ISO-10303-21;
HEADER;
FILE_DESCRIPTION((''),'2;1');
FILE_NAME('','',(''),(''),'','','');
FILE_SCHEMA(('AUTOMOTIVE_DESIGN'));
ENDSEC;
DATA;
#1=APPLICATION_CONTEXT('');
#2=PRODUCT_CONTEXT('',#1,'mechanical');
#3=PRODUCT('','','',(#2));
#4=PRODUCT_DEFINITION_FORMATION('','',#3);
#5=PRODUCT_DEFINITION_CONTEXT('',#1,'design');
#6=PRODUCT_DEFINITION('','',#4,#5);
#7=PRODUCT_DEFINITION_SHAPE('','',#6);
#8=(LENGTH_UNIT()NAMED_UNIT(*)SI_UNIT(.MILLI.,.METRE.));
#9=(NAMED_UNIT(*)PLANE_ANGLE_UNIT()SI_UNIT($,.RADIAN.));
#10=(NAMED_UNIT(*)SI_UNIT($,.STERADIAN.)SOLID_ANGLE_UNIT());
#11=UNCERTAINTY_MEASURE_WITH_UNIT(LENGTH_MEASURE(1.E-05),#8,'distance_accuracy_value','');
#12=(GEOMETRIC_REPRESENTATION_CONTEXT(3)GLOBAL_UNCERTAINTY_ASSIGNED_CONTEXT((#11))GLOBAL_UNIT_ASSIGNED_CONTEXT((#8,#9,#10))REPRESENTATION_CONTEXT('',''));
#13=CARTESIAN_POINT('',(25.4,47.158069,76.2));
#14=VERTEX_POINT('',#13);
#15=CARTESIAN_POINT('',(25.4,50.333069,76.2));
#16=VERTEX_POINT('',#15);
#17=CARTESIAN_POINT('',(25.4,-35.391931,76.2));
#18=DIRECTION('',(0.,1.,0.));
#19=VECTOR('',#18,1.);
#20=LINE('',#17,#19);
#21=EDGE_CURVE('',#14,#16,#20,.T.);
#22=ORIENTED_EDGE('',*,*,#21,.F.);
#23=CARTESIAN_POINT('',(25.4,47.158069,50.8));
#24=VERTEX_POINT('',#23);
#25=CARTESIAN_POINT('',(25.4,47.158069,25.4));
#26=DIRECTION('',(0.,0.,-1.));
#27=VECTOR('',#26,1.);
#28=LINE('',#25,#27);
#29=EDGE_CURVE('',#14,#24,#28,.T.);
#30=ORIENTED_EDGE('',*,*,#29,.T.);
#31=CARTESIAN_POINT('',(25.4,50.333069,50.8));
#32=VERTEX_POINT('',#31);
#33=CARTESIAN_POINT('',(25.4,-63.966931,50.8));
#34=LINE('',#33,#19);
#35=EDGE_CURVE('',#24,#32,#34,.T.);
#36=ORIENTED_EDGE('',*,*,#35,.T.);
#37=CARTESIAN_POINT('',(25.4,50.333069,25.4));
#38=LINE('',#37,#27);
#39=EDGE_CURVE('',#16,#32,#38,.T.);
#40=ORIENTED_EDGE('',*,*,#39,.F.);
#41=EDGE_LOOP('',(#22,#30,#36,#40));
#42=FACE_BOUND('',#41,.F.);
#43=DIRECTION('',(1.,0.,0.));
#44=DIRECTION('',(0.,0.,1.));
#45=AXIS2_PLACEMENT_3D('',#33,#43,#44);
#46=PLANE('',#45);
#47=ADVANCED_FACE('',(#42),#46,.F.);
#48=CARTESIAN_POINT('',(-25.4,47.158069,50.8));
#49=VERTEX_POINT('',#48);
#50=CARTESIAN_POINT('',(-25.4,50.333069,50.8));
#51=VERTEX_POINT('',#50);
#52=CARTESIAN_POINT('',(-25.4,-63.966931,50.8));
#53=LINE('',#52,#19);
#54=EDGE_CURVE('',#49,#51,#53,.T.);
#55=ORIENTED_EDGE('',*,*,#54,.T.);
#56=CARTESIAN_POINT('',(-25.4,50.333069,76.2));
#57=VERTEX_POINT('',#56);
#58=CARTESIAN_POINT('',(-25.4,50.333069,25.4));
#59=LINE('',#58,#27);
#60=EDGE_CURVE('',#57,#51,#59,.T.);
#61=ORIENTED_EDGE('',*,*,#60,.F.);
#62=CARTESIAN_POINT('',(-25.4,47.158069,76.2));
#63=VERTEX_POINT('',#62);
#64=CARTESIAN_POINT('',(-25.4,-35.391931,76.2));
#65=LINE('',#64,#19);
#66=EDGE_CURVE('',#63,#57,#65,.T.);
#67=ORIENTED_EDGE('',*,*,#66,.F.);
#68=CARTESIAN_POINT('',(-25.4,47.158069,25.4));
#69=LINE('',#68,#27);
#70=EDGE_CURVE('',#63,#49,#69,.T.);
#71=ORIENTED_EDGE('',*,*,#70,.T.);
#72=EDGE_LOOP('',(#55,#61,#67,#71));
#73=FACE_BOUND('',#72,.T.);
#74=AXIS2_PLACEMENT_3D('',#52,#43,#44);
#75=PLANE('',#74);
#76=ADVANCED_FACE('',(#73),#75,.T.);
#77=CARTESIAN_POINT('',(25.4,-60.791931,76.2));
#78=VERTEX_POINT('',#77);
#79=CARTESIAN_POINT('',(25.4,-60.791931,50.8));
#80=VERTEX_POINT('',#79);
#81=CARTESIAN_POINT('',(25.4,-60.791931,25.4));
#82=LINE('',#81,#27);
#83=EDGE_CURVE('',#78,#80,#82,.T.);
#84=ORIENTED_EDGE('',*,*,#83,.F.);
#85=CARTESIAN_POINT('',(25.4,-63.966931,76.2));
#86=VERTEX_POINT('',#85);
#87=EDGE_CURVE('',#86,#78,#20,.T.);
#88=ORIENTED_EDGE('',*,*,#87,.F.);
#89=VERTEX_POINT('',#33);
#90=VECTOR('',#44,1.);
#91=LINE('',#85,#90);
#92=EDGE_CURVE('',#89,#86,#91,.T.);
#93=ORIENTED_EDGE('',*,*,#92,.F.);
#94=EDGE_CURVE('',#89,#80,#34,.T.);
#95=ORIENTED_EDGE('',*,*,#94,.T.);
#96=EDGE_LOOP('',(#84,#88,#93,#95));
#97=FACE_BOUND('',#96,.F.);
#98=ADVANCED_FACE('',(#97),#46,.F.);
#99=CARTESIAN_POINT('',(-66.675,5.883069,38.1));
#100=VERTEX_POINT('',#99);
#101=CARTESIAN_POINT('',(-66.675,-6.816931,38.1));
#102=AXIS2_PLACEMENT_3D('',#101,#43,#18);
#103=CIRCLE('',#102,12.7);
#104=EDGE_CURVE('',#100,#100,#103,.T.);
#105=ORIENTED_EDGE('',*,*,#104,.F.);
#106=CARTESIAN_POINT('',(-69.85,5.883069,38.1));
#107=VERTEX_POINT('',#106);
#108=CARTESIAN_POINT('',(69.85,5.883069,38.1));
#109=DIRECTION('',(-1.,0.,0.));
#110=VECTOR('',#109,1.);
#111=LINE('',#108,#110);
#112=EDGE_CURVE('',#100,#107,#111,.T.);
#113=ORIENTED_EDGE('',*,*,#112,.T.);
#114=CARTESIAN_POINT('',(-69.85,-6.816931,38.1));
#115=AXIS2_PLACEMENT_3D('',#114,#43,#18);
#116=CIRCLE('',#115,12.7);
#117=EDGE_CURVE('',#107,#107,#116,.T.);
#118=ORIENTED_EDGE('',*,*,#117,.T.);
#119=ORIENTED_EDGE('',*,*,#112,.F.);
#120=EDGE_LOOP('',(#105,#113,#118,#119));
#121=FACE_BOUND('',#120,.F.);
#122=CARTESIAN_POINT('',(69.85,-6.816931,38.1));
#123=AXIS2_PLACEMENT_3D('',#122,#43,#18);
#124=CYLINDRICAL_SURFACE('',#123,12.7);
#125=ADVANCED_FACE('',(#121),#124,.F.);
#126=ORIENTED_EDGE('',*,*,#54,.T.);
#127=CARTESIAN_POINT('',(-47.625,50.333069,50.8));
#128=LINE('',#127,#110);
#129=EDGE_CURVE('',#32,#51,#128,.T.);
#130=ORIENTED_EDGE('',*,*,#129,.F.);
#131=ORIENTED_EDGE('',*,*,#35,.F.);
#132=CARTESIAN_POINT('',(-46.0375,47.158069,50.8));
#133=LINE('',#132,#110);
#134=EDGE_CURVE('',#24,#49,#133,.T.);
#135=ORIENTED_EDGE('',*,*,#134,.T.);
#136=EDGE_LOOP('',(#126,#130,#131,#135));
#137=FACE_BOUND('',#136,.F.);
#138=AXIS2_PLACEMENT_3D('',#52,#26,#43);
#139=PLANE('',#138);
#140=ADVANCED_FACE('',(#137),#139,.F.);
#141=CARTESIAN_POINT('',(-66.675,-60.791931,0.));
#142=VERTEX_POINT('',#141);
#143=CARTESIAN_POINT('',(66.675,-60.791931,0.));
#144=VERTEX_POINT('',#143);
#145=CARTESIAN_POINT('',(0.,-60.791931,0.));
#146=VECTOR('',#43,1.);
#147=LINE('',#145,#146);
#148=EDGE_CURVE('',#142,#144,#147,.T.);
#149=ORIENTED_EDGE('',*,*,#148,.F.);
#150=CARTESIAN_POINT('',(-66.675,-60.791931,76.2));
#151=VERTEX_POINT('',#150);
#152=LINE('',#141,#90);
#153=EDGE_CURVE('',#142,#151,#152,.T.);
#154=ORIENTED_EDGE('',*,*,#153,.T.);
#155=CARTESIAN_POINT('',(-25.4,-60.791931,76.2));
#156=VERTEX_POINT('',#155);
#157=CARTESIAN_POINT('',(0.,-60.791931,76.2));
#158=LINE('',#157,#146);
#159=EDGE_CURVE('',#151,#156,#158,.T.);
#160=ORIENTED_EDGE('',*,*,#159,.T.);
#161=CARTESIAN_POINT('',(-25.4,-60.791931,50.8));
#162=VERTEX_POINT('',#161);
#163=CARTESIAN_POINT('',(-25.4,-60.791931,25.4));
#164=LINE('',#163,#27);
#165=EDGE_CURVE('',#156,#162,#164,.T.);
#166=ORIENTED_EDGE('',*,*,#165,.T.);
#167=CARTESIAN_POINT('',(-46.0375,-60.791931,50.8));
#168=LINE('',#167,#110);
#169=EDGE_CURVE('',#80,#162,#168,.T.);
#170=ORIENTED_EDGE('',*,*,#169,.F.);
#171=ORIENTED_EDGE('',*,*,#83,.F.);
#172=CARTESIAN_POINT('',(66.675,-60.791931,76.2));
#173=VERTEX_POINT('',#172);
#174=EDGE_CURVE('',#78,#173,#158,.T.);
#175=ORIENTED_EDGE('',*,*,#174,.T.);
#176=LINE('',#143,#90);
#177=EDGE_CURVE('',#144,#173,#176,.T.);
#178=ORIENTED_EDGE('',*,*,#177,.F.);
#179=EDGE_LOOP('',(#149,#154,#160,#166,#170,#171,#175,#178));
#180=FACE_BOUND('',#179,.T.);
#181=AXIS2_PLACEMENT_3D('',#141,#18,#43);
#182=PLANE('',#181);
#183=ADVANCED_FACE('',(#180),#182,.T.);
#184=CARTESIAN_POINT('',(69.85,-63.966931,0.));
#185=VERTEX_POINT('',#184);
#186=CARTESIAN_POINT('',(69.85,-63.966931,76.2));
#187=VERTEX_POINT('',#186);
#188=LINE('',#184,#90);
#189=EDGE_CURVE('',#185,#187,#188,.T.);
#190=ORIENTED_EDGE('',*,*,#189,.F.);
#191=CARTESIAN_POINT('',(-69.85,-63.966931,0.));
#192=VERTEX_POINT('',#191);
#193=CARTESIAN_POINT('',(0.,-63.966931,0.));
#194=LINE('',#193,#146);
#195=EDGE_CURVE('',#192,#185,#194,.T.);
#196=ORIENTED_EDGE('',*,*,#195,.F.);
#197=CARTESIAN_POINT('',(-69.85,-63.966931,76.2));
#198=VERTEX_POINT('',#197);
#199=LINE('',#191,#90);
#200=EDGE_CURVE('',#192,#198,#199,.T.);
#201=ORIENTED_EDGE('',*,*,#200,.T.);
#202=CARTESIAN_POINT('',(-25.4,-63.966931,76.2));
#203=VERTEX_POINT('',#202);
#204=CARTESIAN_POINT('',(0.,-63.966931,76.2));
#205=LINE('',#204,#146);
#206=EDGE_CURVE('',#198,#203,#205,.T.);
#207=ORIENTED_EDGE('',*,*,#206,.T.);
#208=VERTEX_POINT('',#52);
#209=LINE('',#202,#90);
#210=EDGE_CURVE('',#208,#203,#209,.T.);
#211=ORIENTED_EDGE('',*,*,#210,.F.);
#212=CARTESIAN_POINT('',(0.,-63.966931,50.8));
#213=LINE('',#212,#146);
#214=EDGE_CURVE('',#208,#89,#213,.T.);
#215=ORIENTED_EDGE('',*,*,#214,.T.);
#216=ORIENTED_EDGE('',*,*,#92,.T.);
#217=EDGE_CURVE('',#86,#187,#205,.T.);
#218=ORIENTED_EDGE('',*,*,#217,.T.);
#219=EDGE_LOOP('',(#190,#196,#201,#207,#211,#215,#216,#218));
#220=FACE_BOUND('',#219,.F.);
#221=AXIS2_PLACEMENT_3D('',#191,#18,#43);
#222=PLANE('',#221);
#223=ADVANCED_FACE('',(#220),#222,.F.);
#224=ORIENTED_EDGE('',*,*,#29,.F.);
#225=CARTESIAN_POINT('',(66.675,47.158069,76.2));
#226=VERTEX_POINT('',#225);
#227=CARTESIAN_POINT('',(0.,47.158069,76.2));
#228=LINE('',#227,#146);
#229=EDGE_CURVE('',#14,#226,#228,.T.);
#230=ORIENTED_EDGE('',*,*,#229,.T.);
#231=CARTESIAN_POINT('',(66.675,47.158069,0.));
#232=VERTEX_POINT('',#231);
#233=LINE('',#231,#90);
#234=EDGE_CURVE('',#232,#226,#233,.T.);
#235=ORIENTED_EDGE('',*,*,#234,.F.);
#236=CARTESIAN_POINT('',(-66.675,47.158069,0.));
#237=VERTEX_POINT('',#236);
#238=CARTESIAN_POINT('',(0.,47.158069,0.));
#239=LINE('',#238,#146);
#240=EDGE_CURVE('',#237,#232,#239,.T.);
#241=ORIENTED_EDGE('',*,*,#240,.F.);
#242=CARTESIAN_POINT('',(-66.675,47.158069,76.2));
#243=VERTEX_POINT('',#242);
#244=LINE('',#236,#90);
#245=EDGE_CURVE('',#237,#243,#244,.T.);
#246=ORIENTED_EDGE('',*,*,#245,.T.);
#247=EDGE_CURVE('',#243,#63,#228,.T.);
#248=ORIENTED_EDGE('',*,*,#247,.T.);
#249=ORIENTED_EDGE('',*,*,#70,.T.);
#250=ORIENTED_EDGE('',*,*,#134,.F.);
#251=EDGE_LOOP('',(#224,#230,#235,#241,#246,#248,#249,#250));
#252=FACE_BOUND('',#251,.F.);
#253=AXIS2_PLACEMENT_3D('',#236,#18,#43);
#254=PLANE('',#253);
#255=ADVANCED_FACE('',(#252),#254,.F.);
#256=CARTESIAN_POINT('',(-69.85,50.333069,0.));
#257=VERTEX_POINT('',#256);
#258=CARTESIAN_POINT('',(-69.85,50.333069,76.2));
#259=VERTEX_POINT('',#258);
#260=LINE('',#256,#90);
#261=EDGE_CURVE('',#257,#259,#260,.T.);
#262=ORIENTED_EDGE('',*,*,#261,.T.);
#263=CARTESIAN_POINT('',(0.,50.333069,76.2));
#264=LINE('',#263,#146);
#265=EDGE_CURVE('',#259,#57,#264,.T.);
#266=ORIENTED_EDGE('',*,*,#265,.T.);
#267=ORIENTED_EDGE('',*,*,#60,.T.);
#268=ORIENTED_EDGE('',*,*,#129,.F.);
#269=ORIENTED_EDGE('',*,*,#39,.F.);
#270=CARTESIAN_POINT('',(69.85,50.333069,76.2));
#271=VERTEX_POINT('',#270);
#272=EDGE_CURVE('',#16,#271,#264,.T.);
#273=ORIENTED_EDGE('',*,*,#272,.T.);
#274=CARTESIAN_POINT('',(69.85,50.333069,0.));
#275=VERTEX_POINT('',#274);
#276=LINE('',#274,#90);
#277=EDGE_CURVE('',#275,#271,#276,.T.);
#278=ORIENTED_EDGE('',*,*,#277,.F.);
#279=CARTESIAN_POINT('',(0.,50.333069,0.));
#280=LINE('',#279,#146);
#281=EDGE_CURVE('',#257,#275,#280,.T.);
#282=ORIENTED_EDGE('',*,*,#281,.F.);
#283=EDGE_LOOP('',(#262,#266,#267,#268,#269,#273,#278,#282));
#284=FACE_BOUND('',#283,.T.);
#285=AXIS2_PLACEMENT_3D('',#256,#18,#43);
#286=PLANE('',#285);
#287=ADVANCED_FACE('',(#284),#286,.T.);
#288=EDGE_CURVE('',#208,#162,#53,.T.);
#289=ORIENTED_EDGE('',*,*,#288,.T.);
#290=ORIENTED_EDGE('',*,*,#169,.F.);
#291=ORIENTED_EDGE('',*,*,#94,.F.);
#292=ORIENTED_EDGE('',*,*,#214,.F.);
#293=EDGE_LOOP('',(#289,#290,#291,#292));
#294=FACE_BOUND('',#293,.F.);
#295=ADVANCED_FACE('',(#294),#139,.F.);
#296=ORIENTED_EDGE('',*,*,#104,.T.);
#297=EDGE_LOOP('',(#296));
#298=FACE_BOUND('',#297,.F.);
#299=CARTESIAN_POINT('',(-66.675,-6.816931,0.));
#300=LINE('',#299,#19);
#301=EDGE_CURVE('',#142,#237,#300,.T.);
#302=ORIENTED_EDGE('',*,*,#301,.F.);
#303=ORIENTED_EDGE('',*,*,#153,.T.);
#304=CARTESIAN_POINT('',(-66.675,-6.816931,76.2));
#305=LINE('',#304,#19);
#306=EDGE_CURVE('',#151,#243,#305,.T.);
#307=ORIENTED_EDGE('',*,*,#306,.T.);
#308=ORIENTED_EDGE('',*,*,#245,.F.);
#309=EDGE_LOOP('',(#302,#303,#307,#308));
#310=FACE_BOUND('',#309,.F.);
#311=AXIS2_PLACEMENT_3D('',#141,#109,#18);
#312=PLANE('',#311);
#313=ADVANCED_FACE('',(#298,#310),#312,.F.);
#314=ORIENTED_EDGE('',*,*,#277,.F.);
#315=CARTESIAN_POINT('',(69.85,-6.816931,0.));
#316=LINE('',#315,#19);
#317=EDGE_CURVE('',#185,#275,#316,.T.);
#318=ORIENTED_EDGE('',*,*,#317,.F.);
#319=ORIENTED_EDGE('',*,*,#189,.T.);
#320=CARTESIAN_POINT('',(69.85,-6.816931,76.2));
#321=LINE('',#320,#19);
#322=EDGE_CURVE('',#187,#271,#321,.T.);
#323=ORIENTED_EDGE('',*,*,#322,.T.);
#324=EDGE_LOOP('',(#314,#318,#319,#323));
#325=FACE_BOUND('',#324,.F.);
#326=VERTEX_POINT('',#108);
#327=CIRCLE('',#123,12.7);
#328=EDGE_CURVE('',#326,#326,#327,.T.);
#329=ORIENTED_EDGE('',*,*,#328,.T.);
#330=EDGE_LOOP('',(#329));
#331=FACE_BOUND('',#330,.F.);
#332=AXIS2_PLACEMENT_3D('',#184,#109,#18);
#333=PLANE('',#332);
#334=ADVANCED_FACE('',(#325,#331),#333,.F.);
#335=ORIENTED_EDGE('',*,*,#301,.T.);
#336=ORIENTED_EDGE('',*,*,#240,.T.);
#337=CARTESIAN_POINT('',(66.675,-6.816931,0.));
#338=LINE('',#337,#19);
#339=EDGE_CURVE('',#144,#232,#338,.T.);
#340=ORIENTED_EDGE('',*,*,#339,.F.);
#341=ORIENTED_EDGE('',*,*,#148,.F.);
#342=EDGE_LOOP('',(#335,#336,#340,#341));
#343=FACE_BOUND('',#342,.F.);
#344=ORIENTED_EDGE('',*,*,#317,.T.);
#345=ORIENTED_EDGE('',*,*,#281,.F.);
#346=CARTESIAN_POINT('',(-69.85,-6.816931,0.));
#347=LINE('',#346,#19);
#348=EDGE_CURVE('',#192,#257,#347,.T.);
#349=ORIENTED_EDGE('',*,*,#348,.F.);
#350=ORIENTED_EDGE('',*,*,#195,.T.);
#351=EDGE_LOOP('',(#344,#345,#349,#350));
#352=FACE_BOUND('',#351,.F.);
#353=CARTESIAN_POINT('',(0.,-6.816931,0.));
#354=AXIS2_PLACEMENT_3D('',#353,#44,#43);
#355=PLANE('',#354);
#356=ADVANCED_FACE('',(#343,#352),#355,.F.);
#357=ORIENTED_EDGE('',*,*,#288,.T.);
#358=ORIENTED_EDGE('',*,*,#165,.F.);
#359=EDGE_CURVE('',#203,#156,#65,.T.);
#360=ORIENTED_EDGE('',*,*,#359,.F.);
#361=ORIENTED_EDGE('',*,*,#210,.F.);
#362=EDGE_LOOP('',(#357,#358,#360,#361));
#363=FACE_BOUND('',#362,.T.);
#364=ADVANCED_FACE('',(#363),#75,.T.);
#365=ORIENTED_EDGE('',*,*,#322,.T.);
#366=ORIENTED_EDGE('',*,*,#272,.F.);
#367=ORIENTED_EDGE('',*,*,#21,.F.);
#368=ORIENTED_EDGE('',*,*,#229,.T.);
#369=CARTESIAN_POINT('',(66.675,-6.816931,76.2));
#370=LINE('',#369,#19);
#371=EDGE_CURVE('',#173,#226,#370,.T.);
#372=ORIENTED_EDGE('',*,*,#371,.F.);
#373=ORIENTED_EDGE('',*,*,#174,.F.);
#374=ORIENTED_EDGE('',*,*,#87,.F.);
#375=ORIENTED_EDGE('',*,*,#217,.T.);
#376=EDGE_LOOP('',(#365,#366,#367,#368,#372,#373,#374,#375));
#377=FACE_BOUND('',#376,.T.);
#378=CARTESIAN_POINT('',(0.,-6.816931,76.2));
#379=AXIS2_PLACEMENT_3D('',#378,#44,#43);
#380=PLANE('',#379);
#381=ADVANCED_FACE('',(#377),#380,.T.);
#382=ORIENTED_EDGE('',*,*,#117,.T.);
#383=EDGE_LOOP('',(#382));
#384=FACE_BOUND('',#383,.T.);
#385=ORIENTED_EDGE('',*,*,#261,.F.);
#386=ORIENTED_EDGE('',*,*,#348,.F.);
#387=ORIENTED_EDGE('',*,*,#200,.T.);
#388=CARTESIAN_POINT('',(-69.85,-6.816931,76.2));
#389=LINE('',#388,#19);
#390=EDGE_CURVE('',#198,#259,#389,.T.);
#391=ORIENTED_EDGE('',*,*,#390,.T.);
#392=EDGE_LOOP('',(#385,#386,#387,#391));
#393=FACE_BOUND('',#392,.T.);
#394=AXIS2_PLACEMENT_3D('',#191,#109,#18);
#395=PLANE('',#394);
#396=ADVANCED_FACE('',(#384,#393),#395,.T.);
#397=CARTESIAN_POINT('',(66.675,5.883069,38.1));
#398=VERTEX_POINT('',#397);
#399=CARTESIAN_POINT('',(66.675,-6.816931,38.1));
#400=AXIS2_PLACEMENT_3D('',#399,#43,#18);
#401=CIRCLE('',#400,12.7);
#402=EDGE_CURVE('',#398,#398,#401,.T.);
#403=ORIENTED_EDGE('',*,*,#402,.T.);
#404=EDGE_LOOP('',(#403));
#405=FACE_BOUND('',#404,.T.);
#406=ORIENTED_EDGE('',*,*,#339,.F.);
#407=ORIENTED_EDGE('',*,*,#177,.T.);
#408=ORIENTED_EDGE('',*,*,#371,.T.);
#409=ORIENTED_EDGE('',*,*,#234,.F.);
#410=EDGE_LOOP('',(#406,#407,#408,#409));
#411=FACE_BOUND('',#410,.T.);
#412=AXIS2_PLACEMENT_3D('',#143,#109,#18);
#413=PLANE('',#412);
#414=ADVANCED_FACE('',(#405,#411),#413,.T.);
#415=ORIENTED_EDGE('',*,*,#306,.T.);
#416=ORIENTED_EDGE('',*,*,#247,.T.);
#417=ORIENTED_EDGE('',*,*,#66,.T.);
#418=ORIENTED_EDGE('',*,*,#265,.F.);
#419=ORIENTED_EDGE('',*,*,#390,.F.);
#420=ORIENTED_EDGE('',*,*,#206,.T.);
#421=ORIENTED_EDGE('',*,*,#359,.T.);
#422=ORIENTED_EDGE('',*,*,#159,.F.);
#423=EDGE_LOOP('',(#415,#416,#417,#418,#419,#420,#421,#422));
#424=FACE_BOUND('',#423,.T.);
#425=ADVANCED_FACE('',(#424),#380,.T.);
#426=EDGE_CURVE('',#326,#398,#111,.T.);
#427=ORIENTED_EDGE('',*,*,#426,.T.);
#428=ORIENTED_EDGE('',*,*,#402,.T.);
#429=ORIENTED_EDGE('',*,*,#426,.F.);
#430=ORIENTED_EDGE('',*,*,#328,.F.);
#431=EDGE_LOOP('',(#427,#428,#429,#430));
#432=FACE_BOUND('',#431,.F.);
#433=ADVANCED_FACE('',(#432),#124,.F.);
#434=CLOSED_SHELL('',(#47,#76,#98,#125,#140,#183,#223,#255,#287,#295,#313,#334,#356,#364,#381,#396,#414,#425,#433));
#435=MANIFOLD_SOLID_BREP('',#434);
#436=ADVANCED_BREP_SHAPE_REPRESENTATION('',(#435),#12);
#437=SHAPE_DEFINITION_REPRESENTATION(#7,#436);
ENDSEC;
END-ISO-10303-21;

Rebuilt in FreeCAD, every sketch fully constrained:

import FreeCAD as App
import Part
import Sketcher
from FreeCAD import Vector
Q = App.Units.Quantity


def add_polygon(sketch, points):
    """Adds a closed chain of lines whose ends are joined by coincident constraints."""
    first, n = sketch.GeometryCount, len(points)
    for a, b in zip(points, points[1:] + points[:1]):
        sketch.addGeometry(Part.LineSegment(App.Vector(*a, 0), App.Vector(*b, 0)), False)
    for i in range(n):
        sketch.addConstraint(Sketcher.Constraint("Coincident", first + i, 2, first + (i + 1) % n, 1))

doc = App.newDocument("Part")
body = doc.addObject("PartDesign::Body", "Body")

sketch1 = body.newObject("Sketcher::SketchObject", "Sketch")
sketch1.AttachmentSupport = (doc.getObject("XY_Plane"), [""])
sketch1.MapMode = "FlatFace"
add_polygon(sketch1, [(-70, 50), (-70, -64), (70, -64), (70, 50)])
add_polygon(sketch1, [(67, -61), (-67, -61), (-67, 47), (67, 47)])
sketch1.addConstraint([
    Sketcher.Constraint("Vertical", 0),
    Sketcher.Constraint("Horizontal", 1),
    Sketcher.Constraint("Vertical", 2),
    Sketcher.Constraint("Horizontal", 3),
    Sketcher.Constraint("Horizontal", 4),
    Sketcher.Constraint("Vertical", 5),
    Sketcher.Constraint("Horizontal", 6),
    Sketcher.Constraint("Vertical", 7),
    Sketcher.Constraint("DistanceX", 1, 1, 1, 2, Q("5.5 in")),
    Sketcher.Constraint("DistanceY", 0, 2, 0, 1, Q("4.5 in")),
    Sketcher.Constraint("DistanceX", 4, 2, 4, 1, Q("5.25 in")),
    Sketcher.Constraint("DistanceY", 5, 1, 5, 2, Q("4.25 in")),
    Sketcher.Constraint("DistanceX", 0, 2, -1, 1, Q("2.75 in")),
    Sketcher.Constraint("DistanceX", 4, 2, -1, 1, Q("2.625 in")),
    Sketcher.Constraint("DistanceY", 0, 2, 4, 2, Q("0.125 in")),
    Sketcher.Constraint("DistanceY", 0, 2, -1, 1, Q("63.966931 mm")),
])
pad1 = body.newObject("PartDesign::Pad", "Pad")
pad1.Profile = sketch1
pad1.Length = Q("3 in")

sketch2 = body.newObject("Sketcher::SketchObject", "Sketch001")
sketch2.AttachmentSupport = (doc.getObject("XZ_Plane"), [""])
sketch2.MapMode = "FlatFace"
sketch2.AttachmentOffset = App.Placement(Vector(0, 0, 63.966931), App.Rotation())
add_polygon(sketch2, [(-25, 102), (-25, 51), (25, 51), (25, 102)])
sketch2.addConstraint([
    Sketcher.Constraint("Vertical", 0),
    Sketcher.Constraint("Horizontal", 1),
    Sketcher.Constraint("Vertical", 2),
    Sketcher.Constraint("Horizontal", 3),
    Sketcher.Constraint("Equal", 3, 0),
    Sketcher.Constraint("DistanceX", 1, 1, 1, 2, Q("2 in")),
    Sketcher.Constraint("DistanceX", 0, 2, -1, 1, Q("1 in")),
    Sketcher.Constraint("DistanceY", -1, 1, 0, 2, Q("2 in")),
])
pocket1 = body.newObject("PartDesign::Pocket", "Pocket")
pocket1.Profile = sketch2
pocket1.Length = Q("5 in")

sketch3 = body.newObject("Sketcher::SketchObject", "Sketch002")
sketch3.AttachmentSupport = (doc.getObject("YZ_Plane"), [""])
sketch3.MapMode = "FlatFace"
sketch3.AttachmentOffset = App.Placement(Vector(0, 0, 2.75 * 25.4), App.Rotation())
sketch3.addGeometry(Part.Circle(Vector(-7, 38, 0), Vector(0, 0, 1), 13), False)
sketch3.addConstraint([
    Sketcher.Constraint("Diameter", 0, Q("1 in")),
    Sketcher.Constraint("DistanceY", -1, 1, 0, 3, Q("1.5 in")),
    Sketcher.Constraint("DistanceX", 0, 3, -1, 1, Q("6.816931 mm")),
])
pocket2 = body.newObject("PartDesign::Pocket", "Pocket001")
pocket2.Profile = sketch3
pocket2.Length = Q("6.92 in")

doc.recompute()
